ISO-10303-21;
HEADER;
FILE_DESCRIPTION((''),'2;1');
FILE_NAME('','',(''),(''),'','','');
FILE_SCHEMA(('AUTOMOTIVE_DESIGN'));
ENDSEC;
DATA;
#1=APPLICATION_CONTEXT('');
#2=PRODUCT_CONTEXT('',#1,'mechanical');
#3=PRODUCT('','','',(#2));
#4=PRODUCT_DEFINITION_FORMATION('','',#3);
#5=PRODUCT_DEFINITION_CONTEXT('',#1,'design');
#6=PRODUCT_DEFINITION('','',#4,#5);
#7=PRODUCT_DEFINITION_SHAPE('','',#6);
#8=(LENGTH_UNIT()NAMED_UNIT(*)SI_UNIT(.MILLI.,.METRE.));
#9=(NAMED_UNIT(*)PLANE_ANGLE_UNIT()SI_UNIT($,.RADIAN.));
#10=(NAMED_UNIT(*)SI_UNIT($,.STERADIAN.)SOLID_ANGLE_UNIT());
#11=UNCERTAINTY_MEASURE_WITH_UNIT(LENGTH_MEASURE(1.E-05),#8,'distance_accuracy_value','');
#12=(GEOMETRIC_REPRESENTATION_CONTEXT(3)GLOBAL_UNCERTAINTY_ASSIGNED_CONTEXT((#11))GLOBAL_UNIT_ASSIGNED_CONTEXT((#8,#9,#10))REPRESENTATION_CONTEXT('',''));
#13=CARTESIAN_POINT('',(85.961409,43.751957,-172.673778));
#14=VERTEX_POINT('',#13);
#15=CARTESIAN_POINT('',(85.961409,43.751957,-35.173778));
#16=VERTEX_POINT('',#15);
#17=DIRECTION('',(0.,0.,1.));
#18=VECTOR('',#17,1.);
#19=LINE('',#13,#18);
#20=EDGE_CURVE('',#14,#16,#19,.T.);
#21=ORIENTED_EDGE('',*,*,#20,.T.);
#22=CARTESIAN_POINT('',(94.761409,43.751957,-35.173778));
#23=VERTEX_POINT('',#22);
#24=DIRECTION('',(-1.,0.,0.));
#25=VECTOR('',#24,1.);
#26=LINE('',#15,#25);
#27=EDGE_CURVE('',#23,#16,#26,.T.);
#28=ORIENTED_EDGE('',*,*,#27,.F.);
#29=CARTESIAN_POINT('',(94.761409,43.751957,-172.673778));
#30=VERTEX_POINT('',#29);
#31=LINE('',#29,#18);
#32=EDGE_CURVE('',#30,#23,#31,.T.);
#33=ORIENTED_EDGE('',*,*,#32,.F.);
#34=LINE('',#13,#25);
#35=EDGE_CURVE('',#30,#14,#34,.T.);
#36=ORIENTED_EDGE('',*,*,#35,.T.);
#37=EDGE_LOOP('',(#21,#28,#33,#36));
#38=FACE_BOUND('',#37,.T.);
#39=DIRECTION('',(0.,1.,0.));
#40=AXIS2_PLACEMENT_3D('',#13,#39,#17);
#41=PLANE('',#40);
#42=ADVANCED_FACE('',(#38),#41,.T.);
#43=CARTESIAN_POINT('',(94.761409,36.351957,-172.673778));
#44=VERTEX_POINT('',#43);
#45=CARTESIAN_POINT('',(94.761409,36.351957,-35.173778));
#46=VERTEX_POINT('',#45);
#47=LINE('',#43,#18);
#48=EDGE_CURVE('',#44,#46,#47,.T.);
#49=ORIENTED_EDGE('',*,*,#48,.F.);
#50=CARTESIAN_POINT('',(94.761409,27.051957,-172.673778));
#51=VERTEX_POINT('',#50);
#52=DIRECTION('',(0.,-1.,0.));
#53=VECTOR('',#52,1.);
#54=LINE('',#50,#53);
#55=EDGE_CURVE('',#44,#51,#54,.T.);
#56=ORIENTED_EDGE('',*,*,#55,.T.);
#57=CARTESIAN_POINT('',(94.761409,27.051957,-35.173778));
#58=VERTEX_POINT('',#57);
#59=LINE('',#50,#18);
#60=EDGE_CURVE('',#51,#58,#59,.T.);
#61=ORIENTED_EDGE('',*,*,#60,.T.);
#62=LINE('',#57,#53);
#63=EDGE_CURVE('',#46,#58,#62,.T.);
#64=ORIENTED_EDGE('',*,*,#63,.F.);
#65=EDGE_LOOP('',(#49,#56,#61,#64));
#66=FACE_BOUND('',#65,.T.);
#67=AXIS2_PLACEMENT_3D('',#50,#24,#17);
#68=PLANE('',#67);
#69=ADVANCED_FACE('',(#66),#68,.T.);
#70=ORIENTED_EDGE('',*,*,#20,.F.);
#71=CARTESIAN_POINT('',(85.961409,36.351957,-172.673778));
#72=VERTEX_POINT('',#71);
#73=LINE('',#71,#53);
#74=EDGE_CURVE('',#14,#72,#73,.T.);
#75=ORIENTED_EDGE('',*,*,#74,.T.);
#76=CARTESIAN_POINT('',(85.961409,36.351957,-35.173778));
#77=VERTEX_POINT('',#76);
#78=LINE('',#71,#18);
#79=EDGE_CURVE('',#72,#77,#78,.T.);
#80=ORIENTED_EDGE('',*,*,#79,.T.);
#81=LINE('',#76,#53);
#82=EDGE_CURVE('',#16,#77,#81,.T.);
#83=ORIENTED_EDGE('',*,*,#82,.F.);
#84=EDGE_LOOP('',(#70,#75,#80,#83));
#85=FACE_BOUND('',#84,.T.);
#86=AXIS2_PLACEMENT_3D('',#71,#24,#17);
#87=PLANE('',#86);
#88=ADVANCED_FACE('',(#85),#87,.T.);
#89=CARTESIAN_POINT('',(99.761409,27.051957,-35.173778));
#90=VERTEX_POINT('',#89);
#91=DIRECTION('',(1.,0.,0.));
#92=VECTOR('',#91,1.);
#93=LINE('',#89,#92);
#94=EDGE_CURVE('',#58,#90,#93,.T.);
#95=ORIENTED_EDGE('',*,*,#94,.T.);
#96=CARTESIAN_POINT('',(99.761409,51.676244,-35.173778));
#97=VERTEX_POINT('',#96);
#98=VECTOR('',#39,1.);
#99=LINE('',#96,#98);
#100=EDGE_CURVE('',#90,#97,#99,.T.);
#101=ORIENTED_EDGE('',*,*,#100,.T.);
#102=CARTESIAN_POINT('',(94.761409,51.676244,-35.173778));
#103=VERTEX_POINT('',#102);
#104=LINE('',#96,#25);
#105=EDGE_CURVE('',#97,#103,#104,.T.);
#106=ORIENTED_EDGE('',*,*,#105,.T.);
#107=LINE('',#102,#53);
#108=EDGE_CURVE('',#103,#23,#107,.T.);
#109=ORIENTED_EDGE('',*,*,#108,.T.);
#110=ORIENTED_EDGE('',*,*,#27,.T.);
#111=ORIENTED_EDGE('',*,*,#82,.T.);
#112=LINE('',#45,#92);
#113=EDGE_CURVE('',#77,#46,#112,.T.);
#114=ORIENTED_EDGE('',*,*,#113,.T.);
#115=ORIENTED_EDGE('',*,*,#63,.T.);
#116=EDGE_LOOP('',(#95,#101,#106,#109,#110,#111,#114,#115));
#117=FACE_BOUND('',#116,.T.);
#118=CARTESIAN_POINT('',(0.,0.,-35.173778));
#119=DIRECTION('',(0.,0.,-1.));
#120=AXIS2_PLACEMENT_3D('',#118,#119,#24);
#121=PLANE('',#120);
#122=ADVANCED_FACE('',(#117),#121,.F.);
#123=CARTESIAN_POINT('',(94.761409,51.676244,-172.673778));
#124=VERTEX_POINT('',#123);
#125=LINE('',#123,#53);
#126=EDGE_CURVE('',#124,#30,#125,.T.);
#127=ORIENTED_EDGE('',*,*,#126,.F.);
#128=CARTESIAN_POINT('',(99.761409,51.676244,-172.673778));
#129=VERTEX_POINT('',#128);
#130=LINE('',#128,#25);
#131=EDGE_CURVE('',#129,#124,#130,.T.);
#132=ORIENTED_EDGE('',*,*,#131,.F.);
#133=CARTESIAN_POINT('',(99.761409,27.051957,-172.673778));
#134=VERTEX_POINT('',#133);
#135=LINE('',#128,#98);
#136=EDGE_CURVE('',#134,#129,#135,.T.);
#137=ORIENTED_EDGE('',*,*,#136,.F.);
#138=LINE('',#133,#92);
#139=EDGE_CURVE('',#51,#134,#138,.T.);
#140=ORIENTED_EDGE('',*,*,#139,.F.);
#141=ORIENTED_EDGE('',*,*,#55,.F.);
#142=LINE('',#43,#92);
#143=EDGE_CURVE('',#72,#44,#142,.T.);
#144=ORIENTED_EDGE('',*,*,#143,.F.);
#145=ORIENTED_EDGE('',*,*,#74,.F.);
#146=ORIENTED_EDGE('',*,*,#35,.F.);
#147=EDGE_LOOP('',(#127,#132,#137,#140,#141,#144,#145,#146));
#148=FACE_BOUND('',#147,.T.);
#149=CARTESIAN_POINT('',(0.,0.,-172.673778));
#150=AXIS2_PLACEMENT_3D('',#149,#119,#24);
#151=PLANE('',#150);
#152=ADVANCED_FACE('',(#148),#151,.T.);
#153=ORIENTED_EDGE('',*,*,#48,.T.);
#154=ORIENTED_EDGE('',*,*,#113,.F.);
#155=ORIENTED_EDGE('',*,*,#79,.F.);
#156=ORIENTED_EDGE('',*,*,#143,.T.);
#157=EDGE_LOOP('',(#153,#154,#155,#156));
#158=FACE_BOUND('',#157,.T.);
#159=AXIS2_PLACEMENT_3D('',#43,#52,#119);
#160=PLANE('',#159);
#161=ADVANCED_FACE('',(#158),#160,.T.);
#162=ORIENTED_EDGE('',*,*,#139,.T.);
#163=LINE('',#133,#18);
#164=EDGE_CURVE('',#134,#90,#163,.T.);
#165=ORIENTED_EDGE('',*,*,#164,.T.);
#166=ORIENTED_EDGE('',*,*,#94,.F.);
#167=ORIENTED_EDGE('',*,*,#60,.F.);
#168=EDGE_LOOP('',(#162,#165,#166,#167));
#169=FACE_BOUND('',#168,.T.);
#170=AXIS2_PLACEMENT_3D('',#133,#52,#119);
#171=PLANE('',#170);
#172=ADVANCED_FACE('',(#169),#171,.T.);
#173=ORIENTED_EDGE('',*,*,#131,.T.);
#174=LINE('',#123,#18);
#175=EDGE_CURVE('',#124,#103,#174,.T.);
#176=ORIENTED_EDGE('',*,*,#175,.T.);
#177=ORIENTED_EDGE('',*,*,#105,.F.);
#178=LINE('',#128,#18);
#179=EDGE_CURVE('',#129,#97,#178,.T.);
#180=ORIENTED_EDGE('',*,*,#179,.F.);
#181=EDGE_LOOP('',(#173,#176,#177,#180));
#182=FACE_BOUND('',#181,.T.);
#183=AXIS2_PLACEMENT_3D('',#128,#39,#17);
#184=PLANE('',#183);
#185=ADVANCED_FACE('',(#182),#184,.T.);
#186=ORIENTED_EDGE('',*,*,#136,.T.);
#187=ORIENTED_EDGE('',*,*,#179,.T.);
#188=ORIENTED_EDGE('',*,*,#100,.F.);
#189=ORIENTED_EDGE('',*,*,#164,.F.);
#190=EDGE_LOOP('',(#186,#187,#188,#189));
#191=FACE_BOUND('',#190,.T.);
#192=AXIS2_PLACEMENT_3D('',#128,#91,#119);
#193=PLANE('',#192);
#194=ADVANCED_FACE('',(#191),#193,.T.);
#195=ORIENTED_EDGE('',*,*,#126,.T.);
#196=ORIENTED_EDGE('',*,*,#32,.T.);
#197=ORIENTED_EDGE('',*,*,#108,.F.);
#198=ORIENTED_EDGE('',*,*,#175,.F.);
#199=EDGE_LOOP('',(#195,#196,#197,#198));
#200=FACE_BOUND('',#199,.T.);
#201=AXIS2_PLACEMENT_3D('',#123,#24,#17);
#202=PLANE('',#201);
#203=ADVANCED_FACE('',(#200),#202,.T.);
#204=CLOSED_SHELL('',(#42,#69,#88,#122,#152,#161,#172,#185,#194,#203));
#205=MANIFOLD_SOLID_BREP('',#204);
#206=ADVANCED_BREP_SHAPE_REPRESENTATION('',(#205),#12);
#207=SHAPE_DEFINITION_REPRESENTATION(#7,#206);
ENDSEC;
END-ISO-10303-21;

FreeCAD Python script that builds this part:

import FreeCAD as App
import Part
import Sketcher

V = App.Vector
Q = App.Units.Quantity


def add_polygon(sketch, points):
    """Adds a closed chain of lines whose ends are joined by coincident constraints."""
    first, n = sketch.GeometryCount, len(points)
    for a, b in zip(points, points[1:] + points[:1]):
        sketch.addGeometry(Part.LineSegment(App.Vector(*a, 0), App.Vector(*b, 0)), False)
    for i in range(n):
        sketch.addConstraint(Sketcher.Constraint("Coincident", first + i, 2, first + (i + 1) % n, 1))

doc = App.newDocument("Part")
params = doc.addObject("Spreadsheet::Sheet", "Params")
for row, (alias, value) in enumerate([
    ("sketch1_width", "5 mm"),
    ("sketch1_width2", "8.8 mm"),
    ("sketch1_height", "7.4 mm"),
    ("sketch1_height2", "9.3 mm"),
    ("pad1_length", "137.5 mm"),
], start=1):
    params.set(f"A{row}", alias)
    params.set(f"B{row}", "=" + value)
    params.setAlias(f"B{row}", alias)

body = doc.addObject("PartDesign::Body", "Body")

sketch1 = doc.addObject("Sketcher::SketchObject", "Sketch")
body.addObject(sketch1)
sketch1.AttachmentSupport = (doc.XY_Plane, [""])
sketch1.MapMode = "FlatFace"
sketch1.AttachmentOffset = App.Placement(V(0, 0, -35.173778), App.Rotation())
add_polygon(sketch1, [(94.761409, 43.751957), (85.961409, 43.751957), (85.961409, 36.351957), (94.761409, 36.351957), (94.761409, 27.051957), (99.761409, 27.051957), (99.761409, 51.676244), (94.761409, 51.676244)])
sketch1.addConstraint([
    Sketcher.Constraint("Horizontal", 0),
    Sketcher.Constraint("Vertical", 1),
    Sketcher.Constraint("Horizontal", 2),
    Sketcher.Constraint("Vertical", 3),
    Sketcher.Constraint("Horizontal", 4),
    Sketcher.Constraint("Vertical", 5),
    Sketcher.Constraint("Horizontal", 6),
    Sketcher.Constraint("Vertical", 7),
    Sketcher.Constraint("Vertical", 3, 2, 6, 2),
    Sketcher.Constraint("DistanceX", 4, 1, 4, 2, Q("5 mm")),
    Sketcher.Constraint("DistanceX", 0, 2, 0, 1, Q("8.8 mm")),
    Sketcher.Constraint("DistanceY", 1, 2, 1, 1, Q("7.4 mm")),
    Sketcher.Constraint("DistanceY", 3, 2, 3, 1, Q("9.3 mm")),
    Sketcher.Constraint("DistanceY", 5, 1, 5, 2, Q("24.624287 mm")),
    Sketcher.Constraint("DistanceX", -1, 1, 0, 2, Q("85.961409 mm")),
    Sketcher.Constraint("DistanceY", -1, 1, 0, 2, Q("43.751957 mm")),
])
sketch1.setExpression("Constraints[17]", "Params.sketch1_width")
sketch1.setExpression("Constraints[18]", "Params.sketch1_width2")
sketch1.setExpression("Constraints[19]", "Params.sketch1_height")
sketch1.setExpression("Constraints[20]", "Params.sketch1_height2")
pad1 = doc.addObject("PartDesign::Pad", "Pad")
body.addObject(pad1)
pad1.Profile = sketch1
pad1.setExpression("Length", "Params.pad1_length")
pad1.Reversed = True

doc.recompute()
